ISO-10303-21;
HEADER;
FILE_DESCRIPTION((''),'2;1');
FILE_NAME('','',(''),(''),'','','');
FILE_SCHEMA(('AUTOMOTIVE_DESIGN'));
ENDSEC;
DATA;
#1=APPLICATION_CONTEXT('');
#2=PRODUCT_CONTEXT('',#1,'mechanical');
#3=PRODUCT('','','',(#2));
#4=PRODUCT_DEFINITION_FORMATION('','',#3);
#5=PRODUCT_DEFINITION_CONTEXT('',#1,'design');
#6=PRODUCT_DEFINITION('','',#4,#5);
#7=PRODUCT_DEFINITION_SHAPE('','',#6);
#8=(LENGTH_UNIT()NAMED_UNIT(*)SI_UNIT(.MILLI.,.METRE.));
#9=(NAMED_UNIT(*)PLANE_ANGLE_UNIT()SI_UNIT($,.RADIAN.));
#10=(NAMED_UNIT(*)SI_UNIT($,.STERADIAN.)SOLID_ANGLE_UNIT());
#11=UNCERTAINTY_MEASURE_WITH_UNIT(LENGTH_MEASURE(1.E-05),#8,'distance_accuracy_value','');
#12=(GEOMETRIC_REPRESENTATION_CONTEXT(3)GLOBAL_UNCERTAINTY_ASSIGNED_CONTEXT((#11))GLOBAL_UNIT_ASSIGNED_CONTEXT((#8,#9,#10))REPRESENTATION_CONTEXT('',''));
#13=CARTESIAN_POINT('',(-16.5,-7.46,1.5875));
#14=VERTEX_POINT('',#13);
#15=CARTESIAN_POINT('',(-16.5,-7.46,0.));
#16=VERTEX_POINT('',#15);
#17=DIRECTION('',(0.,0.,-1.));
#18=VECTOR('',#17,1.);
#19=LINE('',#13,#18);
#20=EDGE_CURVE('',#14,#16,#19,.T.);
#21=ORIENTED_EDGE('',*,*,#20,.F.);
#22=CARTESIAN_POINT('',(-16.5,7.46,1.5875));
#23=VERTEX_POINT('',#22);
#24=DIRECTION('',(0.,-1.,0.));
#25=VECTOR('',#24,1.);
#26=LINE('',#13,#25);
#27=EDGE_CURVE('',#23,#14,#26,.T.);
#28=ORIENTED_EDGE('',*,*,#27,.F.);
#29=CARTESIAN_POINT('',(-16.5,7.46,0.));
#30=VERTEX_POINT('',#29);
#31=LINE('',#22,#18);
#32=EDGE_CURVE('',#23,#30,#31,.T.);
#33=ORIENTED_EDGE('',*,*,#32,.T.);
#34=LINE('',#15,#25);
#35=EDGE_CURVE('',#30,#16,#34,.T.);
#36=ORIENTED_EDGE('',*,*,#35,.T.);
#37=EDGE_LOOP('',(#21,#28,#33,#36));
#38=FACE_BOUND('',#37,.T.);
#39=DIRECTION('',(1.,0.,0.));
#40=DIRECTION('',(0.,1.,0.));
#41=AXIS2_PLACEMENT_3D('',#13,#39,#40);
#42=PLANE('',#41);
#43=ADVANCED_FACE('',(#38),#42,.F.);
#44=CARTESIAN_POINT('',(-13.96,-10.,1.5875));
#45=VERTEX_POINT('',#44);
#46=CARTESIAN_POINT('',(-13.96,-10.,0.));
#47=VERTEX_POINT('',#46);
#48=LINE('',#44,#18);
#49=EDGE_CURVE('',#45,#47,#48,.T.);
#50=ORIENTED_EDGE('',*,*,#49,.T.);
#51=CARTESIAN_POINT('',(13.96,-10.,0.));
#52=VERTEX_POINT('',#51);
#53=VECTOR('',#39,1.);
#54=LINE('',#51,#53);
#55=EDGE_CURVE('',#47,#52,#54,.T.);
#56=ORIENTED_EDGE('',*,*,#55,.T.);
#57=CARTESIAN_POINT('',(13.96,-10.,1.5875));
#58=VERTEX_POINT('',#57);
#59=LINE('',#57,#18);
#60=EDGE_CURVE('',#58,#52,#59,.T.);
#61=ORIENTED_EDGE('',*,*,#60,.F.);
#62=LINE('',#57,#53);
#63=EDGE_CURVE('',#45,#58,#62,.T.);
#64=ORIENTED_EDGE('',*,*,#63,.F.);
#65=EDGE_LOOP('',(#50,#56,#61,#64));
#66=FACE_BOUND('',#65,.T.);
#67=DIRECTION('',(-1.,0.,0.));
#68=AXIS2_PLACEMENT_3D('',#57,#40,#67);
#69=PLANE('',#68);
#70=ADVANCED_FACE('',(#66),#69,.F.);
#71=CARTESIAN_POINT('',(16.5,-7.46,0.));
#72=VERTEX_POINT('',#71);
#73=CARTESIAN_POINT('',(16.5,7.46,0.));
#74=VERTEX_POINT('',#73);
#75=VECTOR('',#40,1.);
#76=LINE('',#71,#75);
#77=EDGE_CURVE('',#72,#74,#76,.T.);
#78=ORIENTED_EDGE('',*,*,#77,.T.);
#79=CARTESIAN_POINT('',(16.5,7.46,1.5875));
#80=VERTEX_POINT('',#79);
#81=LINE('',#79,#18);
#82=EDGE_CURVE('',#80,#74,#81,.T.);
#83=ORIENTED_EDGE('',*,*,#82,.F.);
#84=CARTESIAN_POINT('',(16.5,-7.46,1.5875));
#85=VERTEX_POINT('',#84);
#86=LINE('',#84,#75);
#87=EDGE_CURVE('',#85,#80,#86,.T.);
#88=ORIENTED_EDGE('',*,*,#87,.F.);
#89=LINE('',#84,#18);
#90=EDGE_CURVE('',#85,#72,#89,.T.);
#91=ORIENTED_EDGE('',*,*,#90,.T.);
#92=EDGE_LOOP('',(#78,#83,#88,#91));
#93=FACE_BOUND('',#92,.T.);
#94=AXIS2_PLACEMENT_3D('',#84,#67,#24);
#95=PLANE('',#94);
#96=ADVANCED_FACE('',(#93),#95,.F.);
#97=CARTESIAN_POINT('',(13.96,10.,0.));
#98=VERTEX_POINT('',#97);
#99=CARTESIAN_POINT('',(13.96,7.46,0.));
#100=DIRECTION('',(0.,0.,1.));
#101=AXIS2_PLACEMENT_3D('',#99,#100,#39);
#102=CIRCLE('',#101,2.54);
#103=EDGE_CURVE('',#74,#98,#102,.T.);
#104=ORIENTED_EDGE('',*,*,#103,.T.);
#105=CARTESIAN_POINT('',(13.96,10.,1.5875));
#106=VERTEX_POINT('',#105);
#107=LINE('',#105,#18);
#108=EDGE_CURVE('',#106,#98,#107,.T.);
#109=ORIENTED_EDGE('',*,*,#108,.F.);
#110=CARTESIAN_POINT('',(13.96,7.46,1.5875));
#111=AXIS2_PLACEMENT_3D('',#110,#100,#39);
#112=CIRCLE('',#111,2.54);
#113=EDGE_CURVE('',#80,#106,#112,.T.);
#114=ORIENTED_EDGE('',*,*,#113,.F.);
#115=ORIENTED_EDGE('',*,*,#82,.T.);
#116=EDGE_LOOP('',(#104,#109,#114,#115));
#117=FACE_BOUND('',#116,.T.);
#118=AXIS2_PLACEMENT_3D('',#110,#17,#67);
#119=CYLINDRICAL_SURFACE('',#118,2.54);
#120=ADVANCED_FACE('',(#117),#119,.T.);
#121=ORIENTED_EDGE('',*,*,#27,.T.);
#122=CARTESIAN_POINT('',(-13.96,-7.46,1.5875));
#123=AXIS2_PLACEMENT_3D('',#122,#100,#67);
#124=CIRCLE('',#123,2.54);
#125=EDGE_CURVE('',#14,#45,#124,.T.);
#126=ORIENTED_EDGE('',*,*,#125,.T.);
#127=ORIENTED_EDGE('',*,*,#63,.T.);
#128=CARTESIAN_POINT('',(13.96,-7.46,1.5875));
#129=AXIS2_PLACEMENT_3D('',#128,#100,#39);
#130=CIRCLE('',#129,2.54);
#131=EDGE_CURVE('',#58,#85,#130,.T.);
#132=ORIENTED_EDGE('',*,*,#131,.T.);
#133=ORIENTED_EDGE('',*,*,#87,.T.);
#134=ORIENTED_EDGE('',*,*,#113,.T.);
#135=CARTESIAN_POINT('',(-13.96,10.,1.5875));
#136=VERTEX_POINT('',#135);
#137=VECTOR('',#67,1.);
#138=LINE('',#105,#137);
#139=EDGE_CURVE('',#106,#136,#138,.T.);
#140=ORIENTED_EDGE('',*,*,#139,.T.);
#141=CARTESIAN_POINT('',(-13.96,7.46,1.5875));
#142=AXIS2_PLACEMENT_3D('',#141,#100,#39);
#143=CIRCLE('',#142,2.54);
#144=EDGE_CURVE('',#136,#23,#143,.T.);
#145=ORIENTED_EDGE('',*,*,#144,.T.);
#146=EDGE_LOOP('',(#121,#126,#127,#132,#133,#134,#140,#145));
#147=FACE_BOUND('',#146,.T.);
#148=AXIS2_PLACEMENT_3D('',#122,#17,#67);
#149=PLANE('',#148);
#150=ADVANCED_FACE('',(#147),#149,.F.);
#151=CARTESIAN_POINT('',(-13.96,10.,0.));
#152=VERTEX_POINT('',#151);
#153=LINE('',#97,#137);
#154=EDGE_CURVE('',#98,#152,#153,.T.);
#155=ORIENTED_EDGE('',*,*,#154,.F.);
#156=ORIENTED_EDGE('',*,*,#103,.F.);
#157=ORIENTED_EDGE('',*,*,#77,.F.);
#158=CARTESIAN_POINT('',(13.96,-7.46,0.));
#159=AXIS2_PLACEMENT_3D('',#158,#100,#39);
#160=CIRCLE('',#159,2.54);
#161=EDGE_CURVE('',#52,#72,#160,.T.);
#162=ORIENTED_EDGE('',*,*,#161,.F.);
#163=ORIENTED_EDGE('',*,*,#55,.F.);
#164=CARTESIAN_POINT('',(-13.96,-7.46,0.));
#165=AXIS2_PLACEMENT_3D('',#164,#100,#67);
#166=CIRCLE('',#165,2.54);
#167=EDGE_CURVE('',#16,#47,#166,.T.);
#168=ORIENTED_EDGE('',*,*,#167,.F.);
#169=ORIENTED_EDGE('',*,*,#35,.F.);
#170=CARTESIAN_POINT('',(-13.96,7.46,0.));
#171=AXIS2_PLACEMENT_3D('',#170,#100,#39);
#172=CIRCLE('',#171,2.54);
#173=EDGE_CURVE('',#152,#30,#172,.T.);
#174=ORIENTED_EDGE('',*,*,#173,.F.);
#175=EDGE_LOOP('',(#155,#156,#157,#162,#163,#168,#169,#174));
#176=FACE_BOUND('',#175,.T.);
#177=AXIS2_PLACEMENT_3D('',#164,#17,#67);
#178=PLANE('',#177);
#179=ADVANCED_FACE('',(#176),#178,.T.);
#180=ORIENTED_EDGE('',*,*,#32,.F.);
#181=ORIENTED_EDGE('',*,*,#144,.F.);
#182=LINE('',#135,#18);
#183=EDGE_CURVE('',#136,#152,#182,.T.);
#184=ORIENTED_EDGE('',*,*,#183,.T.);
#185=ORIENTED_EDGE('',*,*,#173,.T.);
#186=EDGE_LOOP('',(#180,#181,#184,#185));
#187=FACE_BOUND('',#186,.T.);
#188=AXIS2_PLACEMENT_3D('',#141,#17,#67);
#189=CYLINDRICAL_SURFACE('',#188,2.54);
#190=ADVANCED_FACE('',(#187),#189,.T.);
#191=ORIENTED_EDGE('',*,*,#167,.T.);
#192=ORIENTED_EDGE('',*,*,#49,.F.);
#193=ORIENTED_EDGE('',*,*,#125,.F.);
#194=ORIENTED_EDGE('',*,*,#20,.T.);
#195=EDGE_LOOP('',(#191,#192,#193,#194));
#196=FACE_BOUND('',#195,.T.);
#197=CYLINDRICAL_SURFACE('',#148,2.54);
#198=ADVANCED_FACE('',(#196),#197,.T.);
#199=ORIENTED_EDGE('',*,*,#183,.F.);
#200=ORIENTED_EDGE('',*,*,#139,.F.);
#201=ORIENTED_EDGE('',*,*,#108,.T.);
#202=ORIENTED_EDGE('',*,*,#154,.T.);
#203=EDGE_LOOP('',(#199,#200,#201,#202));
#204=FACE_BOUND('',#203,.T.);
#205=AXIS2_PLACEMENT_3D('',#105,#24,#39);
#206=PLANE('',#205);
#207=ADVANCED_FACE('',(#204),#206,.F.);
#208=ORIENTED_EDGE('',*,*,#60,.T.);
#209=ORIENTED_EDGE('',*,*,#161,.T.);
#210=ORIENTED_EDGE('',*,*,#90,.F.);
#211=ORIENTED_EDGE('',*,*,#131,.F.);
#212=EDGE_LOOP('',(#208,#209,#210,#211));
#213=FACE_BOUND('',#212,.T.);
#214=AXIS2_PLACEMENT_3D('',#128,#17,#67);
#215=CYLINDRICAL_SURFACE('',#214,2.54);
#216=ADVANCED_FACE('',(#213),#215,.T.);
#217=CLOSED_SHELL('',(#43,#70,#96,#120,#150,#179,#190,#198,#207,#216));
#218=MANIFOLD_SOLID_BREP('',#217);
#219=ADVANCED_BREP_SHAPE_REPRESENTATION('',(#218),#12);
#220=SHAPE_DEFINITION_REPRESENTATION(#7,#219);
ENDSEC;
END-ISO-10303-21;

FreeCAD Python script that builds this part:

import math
import FreeCAD as App
import Part
import Sketcher

V = App.Vector
Q = App.Units.Quantity

doc = App.newDocument("Part")
body = doc.addObject("PartDesign::Body", "Body")

# Sketch on XY plane
sketch1 = doc.addObject("Sketcher::SketchObject", "Sketch")
body.addObject(sketch1)
sketch1.AttachmentSupport = (doc.XY_Plane, [""])
sketch1.MapMode = "FlatFace"
sketch1.addGeometry([
    Part.LineSegment(V(-14, -10, 0), V(14, -10, 0)),  # 0
    Part.ArcOfCircle(Part.Circle(V(14, -7.5, 0), V(0, 0, 1), 2.5), math.radians(-90), math.radians(0)),  # 1
    Part.LineSegment(V(16.5, -7.5, 0), V(16.5, 7.5, 0)),  # 2
    Part.ArcOfCircle(Part.Circle(V(14, 7.5, 0), V(0, 0, 1), 2.5), math.radians(0), math.radians(90)),  # 3
    Part.LineSegment(V(14, 10, 0), V(-14, 10, 0)),  # 4
    Part.ArcOfCircle(Part.Circle(V(-14, 7.5, 0), V(0, 0, 1), 2.5), math.radians(90), math.radians(180)),  # 5
    Part.LineSegment(V(-16.5, 7.5, 0), V(-16.5, -7.5, 0)),  # 6
    Part.ArcOfCircle(Part.Circle(V(-14, -7.5, 0), V(0, 0, 1), 2.5), math.radians(-180), math.radians(-90)),  # 7
], False)
sketch1.addConstraint([
    Sketcher.Constraint("Tangent", 0, 2, 1, 1),
    Sketcher.Constraint("Tangent", 1, 2, 2, 1),
    Sketcher.Constraint("Tangent", 2, 2, 3, 1),
    Sketcher.Constraint("Tangent", 3, 2, 4, 1),
    Sketcher.Constraint("Tangent", 4, 2, 5, 1),
    Sketcher.Constraint("Tangent", 5, 2, 6, 1),
    Sketcher.Constraint("Tangent", 6, 2, 7, 1),
    Sketcher.Constraint("Tangent", 7, 2, 0, 1),
    Sketcher.Constraint("Horizontal", 0),
    Sketcher.Constraint("Vertical", 2),
    Sketcher.Constraint("Horizontal", 4),
    Sketcher.Constraint("Vertical", 6),
    Sketcher.Constraint("Equal", 1, 3),
    Sketcher.Constraint("Equal", 3, 5),
    Sketcher.Constraint("Equal", 5, 7),
    Sketcher.Constraint("Symmetric", 1, 3, 5, 3, -1, 1),
    Sketcher.Constraint("Radius", 1, Q("0.1 in")),
    Sketcher.Constraint("DistanceX", 0, 1, 0, 2, 27.92),
    Sketcher.Constraint("DistanceY", 2, 1, 2, 2, 14.92),
])
pad1 = doc.addObject("PartDesign::Pad", "Pad")
body.addObject(pad1)
pad1.Profile = sketch1
pad1.Length = Q("0.0625 in")

doc.recompute()
